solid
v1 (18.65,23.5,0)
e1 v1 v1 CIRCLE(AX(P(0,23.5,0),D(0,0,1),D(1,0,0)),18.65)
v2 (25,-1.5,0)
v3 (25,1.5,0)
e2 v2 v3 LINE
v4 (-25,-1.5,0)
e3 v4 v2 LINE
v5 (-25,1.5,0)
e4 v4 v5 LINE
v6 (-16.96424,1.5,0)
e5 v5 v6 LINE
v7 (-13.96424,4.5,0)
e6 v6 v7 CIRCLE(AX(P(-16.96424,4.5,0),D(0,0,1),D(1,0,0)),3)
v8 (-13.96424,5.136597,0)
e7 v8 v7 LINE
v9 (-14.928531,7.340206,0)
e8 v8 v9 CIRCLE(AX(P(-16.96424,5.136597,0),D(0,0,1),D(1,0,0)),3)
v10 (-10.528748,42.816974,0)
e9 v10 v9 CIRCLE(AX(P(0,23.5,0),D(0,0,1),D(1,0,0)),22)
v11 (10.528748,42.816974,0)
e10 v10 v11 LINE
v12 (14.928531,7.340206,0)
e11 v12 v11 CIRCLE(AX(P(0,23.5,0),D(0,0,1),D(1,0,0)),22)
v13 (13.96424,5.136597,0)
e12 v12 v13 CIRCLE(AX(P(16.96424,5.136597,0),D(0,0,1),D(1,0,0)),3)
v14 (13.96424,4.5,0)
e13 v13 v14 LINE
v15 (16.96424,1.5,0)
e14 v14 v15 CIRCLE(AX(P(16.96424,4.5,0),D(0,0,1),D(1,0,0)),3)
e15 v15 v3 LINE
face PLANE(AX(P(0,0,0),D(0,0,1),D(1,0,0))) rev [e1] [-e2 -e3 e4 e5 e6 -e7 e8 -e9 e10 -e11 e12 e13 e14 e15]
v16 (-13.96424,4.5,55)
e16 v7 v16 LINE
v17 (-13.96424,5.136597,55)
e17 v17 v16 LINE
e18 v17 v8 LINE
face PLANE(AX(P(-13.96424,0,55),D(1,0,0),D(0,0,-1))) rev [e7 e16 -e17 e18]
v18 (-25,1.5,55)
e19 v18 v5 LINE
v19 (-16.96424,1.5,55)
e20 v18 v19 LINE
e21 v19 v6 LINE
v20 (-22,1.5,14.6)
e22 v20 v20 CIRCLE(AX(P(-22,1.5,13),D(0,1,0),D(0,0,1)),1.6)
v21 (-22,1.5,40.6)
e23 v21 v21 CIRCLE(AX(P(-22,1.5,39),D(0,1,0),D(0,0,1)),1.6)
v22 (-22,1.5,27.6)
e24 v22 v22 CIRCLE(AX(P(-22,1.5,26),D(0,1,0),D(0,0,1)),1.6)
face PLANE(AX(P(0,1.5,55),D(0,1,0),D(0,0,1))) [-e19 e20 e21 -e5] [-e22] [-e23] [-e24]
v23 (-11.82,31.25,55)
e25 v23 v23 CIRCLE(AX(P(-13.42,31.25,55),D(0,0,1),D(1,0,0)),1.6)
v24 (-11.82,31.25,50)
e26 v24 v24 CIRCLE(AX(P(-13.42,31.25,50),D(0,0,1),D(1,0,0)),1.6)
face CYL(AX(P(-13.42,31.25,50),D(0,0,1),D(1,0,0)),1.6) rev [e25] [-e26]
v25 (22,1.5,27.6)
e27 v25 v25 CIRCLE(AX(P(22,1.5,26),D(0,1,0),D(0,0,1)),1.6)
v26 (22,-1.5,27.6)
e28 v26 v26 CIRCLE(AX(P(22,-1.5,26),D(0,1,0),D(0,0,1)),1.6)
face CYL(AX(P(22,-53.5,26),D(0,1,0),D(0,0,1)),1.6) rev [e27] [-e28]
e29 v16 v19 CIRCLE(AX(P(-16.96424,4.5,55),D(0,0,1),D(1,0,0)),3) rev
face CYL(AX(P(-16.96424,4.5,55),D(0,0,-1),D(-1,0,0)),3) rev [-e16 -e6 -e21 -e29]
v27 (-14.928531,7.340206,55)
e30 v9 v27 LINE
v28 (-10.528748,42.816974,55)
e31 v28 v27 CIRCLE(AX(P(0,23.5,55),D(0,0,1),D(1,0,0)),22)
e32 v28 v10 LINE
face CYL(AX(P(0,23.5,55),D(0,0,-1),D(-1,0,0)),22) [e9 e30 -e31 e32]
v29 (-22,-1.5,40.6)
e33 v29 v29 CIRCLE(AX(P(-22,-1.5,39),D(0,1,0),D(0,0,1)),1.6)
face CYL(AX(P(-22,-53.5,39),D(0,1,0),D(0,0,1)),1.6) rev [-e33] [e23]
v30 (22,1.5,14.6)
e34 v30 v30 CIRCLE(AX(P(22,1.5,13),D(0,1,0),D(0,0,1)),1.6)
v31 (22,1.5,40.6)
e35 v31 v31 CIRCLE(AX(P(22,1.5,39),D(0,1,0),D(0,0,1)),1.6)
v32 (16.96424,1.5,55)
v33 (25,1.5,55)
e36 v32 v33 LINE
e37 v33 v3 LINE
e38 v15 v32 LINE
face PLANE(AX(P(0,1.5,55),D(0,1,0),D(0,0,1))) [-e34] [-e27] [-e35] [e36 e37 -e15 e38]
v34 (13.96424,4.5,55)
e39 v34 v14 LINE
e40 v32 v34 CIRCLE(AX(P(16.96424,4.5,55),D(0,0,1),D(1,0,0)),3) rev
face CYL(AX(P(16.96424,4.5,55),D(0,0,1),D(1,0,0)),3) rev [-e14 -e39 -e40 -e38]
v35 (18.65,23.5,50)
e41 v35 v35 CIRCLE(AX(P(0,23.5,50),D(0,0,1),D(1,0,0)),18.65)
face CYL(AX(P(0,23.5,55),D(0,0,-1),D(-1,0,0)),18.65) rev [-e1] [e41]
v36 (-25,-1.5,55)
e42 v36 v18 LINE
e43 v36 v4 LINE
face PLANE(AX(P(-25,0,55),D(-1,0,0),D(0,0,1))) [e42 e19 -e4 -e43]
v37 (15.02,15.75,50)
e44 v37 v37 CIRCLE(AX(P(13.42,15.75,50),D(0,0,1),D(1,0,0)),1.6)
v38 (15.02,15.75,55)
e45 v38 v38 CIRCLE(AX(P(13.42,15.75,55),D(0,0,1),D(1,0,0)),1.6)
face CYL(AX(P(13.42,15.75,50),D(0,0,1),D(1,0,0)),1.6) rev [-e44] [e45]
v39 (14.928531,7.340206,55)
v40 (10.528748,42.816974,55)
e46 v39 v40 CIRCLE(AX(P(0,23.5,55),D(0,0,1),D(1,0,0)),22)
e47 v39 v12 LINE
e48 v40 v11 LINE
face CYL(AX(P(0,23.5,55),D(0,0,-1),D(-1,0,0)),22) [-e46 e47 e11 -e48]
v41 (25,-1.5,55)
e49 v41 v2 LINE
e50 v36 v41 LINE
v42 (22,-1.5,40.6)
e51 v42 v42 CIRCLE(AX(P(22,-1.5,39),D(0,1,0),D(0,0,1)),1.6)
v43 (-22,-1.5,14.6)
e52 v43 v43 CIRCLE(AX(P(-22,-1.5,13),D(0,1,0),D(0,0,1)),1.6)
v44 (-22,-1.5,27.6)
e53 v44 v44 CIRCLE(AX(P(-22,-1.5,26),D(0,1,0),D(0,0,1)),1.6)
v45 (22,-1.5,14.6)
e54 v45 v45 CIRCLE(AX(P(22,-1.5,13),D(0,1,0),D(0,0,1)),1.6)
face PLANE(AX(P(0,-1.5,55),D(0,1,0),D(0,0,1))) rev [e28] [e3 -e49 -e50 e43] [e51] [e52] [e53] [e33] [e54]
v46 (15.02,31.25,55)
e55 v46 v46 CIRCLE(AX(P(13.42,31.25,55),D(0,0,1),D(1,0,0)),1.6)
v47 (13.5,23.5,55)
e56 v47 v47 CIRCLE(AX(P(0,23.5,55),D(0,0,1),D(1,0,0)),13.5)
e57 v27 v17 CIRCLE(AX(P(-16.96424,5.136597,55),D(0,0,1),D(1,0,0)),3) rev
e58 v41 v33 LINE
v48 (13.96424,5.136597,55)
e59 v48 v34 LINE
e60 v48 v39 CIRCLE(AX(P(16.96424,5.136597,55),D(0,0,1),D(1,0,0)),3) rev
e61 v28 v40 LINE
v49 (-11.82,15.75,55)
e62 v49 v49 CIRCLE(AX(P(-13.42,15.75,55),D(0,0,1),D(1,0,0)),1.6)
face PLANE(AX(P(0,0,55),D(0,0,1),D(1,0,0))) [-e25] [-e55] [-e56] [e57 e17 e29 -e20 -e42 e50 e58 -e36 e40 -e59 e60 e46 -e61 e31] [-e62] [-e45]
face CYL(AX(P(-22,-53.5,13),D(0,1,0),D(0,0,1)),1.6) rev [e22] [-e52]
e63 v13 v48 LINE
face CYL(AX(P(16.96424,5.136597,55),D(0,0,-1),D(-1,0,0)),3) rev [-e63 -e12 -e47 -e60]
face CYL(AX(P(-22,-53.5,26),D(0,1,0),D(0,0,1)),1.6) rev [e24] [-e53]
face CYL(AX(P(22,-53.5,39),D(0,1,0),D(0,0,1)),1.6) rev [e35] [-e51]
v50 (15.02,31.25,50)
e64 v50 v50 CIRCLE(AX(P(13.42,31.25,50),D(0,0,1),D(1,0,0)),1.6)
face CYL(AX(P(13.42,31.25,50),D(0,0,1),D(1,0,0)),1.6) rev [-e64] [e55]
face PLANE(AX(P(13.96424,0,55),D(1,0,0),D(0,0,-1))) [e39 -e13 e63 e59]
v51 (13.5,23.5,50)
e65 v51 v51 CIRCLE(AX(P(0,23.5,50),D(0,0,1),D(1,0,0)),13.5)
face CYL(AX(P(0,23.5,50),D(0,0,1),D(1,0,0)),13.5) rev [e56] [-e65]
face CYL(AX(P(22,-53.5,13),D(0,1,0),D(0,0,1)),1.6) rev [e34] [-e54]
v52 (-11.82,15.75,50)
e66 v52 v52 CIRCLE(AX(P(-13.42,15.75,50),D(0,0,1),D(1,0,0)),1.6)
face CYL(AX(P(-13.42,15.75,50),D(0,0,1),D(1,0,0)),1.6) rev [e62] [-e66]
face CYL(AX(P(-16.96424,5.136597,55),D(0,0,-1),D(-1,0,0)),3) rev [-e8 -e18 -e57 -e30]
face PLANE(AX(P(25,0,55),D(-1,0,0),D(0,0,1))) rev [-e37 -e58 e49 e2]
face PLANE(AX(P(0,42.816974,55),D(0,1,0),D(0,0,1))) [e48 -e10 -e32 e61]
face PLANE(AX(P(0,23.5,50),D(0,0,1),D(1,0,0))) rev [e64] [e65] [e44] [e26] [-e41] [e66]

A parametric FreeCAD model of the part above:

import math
import FreeCAD as App
import Part
import Sketcher
from FreeCAD import Vector
Q = App.Units.Quantity


def edges_at(feature, points):
    """Names of the edges that pass closest to the given points."""
    edges = feature.Shape.Edges
    near = lambda p: min(range(len(edges)), key=lambda i: edges[i].distToShape(Part.Vertex(*p))[0])
    return sorted({f"Edge{near(p) + 1}" for p in points})

doc = App.newDocument("Part")
body = doc.addObject("PartDesign::Body", "Body")

sketch1 = body.newObject("Sketcher::SketchObject", "Sketch")
sketch1.AttachmentSupport = (doc.getObject("XY_Plane"), [""])
sketch1.MapMode = "FlatFace"
sketch1.addGeometry(Part.ArcOfCircle(Part.Circle(Vector(0, 23.5, 0), Vector(0, 0, 1), 22), math.radians(118.592665), math.radians(230.599431)), False)
sketch1.addGeometry(Part.LineSegment(Vector(-13.96424, 6.5, 0), Vector(-13.96424, 1.5, 0)), False)
sketch1.addGeometry(Part.LineSegment(Vector(-13.96424, 1.5, 0), Vector(-25, 1.5, 0)), False)
sketch1.addGeometry(Part.LineSegment(Vector(-25, 1.5, 0), Vector(-25, -1.5, 0)), False)
sketch1.addGeometry(Part.LineSegment(Vector(-25, -1.5, 0), Vector(25, -1.5, 0)), False)
sketch1.addGeometry(Part.LineSegment(Vector(25, -1.5, 0), Vector(25, 1.5, 0)), False)
sketch1.addGeometry(Part.LineSegment(Vector(25, 1.5, 0), Vector(13.96424, 1.5, 0)), False)
sketch1.addGeometry(Part.LineSegment(Vector(13.96424, 1.5, 0), Vector(13.96424, 6.5, 0)), False)
sketch1.addGeometry(Part.ArcOfCircle(Part.Circle(Vector(0, 23.5, 0), Vector(0, 0, 1), 22), math.radians(-50.599431), math.radians(0)), False)
sketch1.addGeometry(Part.ArcOfCircle(Part.Circle(Vector(0, 23.5, 0), Vector(0, 0, 1), 22), math.radians(0), math.radians(61.407335)), False)
sketch1.addGeometry(Part.LineSegment(Vector(10.528748, 42.816974, 0), Vector(-10.528748, 42.816974, 0)), False)
sketch1.addGeometry(Part.Circle(Vector(0, 23.5, 0), Vector(0, 0, 1), 18.65), False)
sketch1.addConstraint(Sketcher.Constraint("Coincident", 0, 2, 1, 1))
sketch1.addConstraint(Sketcher.Constraint("Coincident", 1, 2, 2, 1))
sketch1.addConstraint(Sketcher.Constraint("Coincident", 2, 2, 3, 1))
sketch1.addConstraint(Sketcher.Constraint("Coincident", 3, 2, 4, 1))
sketch1.addConstraint(Sketcher.Constraint("Coincident", 4, 2, 5, 1))
sketch1.addConstraint(Sketcher.Constraint("Coincident", 5, 2, 6, 1))
sketch1.addConstraint(Sketcher.Constraint("Coincident", 6, 2, 7, 1))
sketch1.addConstraint(Sketcher.Constraint("Coincident", 7, 2, 8, 1))
sketch1.addConstraint(Sketcher.Constraint("Tangent", 8, 2, 9, 1))
sketch1.addConstraint(Sketcher.Constraint("Coincident", 9, 2, 10, 1))
sketch1.addConstraint(Sketcher.Constraint("Coincident", 10, 2, 0, 1))
sketch1.addConstraint(Sketcher.Constraint("Vertical", 1))
sketch1.addConstraint(Sketcher.Constraint("Horizontal", 2))
sketch1.addConstraint(Sketcher.Constraint("Vertical", 3))
sketch1.addConstraint(Sketcher.Constraint("Horizontal", 4))
sketch1.addConstraint(Sketcher.Constraint("Vertical", 5))
sketch1.addConstraint(Sketcher.Constraint("Horizontal", 6))
sketch1.addConstraint(Sketcher.Constraint("Vertical", 7))
sketch1.addConstraint(Sketcher.Constraint("Horizontal", 10))
sketch1.addConstraint(Sketcher.Constraint("Coincident", 8, 3, 0, 3))
sketch1.addConstraint(Sketcher.Constraint("Coincident", 11, 3, 0, 3))
sketch1.addConstraint(Sketcher.Constraint("Equal", 0, 8))
sketch1.addConstraint(Sketcher.Constraint("Equal", 8, 9))
sketch1.addConstraint(Sketcher.Constraint("Symmetric", 2, 2, 4, 2, -1, 1))
sketch1.addConstraint(Sketcher.Constraint("Symmetric", 1, 2, 6, 2, -2))
sketch1.addConstraint(Sketcher.Constraint("PointOnObject", 0, 3, -2))
sketch1.addConstraint(Sketcher.Constraint("Horizontal", 11, 3, 8, 2))
sketch1.addConstraint(Sketcher.Constraint("Radius", 0, Q("22 mm")))
sketch1.addConstraint(Sketcher.Constraint("Diameter", 11, Q("37.3 mm")))
sketch1.addConstraint(Sketcher.Constraint("DistanceX", 4, 1, 4, 2, Q("50 mm")))
sketch1.addConstraint(Sketcher.Constraint("DistanceY", 1, 2, 1, 1, Q("5 mm")))
sketch1.addConstraint(Sketcher.Constraint("DistanceY", 3, 2, 3, 1, Q("3 mm")))
sketch1.addConstraint(Sketcher.Constraint("DistanceY", 0, 2, 0, 3, Q("17 mm")))
sketch1.addConstraint(Sketcher.Constraint("DistanceX", 10, 2, 10, 1, Q("21.057496 mm")))
pad1 = body.newObject("PartDesign::Pad", "Pad")
pad1.Profile = sketch1
pad1.Length = 55
doc.recompute()

fillet = body.newObject("PartDesign::Fillet", "Fillet")
fillet.Base = (pad1, edges_at(pad1, [(13.964, 6.5, 27.5), (13.964, 1.5, 27.5)]))
fillet.Radius = 3
doc.recompute()

fillet2 = body.newObject("PartDesign::Fillet", "Fillet001")
fillet2.Base = (fillet, edges_at(fillet, [(-13.964, 1.5, 27.5), (-13.964, 6.5, 27.5)]))
fillet2.Radius = 3

sketch2 = body.newObject("Sketcher::SketchObject", "Sketch001")
sketch2.AttachmentSupport = (doc.getObject("XZ_Plane"), [""])
sketch2.MapMode = "FlatFace"
sketch2.AttachmentOffset = App.Placement(Vector(0, 0, -1.5), App.Rotation())
sketch2.addGeometry(Part.Circle(Vector(-22, 13, 0), Vector(0, 0, 1), 1.6), False)
sketch2.addGeometry(Part.Circle(Vector(-22, 26, 0), Vector(0, 0, 1), 1.6), False)
sketch2.addGeometry(Part.Circle(Vector(-22, 39, 0), Vector(0, 0, 1), 1.6), False)
sketch2.addConstraint(Sketcher.Constraint("Equal", 0, 1))
sketch2.addConstraint(Sketcher.Constraint("Equal", 1, 2))
sketch2.addConstraint(Sketcher.Constraint("Vertical", 0, 3, 1, 3))
sketch2.addConstraint(Sketcher.Constraint("Vertical", 1, 3, 2, 3))
sketch2.addConstraint(Sketcher.Constraint("Diameter", 0, Q("3.2 mm")))
sketch2.addConstraint(Sketcher.Constraint("DistanceX", 0, 3, -1, 1, Q("22 mm")))
sketch2.addConstraint(Sketcher.Constraint("DistanceY", -1, 1, 0, 3, Q("13 mm")))
sketch2.addConstraint(Sketcher.Constraint("DistanceY", -1, 1, 1, 3, Q("26 mm")))
sketch2.addConstraint(Sketcher.Constraint("DistanceY", -1, 1, 2, 3, Q("39 mm")))
pocket1 = body.newObject("PartDesign::Pocket", "Pocket")
pocket1.Profile = sketch2
pocket1.Length = 55
pocket1.Reversed = True

sketch3 = body.newObject("Sketcher::SketchObject", "Sketch002")
sketch3.AttachmentSupport = (doc.getObject("XZ_Plane"), [""])
sketch3.MapMode = "FlatFace"
sketch3.AttachmentOffset = App.Placement(Vector(0, 0, -1.5), App.Rotation())
sketch3.addGeometry(Part.Circle(Vector(22, 13, 0), Vector(0, 0, 1), 1.6), False)
sketch3.addGeometry(Part.Circle(Vector(22, 26, 0), Vector(0, 0, 1), 1.6), False)
sketch3.addGeometry(Part.Circle(Vector(22, 39, 0), Vector(0, 0, 1), 1.6), False)
sketch3.addConstraint(Sketcher.Constraint("Equal", 0, 1))
sketch3.addConstraint(Sketcher.Constraint("Equal", 1, 2))
sketch3.addConstraint(Sketcher.Constraint("Vertical", 0, 3, 1, 3))
sketch3.addConstraint(Sketcher.Constraint("Vertical", 1, 3, 2, 3))
sketch3.addConstraint(Sketcher.Constraint("Diameter", 0, Q("3.2 mm")))
sketch3.addConstraint(Sketcher.Constraint("DistanceX", -1, 1, 0, 3, Q("22 mm")))
sketch3.addConstraint(Sketcher.Constraint("DistanceY", -1, 1, 0, 3, Q("13 mm")))
sketch3.addConstraint(Sketcher.Constraint("DistanceY", -1, 1, 1, 3, Q("26 mm")))
sketch3.addConstraint(Sketcher.Constraint("DistanceY", -1, 1, 2, 3, Q("39 mm")))
pocket2 = body.newObject("PartDesign::Pocket", "Pocket001")
pocket2.Profile = sketch3
pocket2.Length = 55
pocket2.Reversed = True

sketch4 = body.newObject("Sketcher::SketchObject", "Sketch003")
sketch4.AttachmentSupport = (doc.getObject("XY_Plane"), [""])
sketch4.MapMode = "FlatFace"
sketch4.AttachmentOffset = App.Placement(Vector(0, 0, 50), App.Rotation())
sketch4.addGeometry(Part.Circle(Vector(0, 23.5, 0), Vector(0, 0, 1), 18.65), False)
sketch4.addGeometry(Part.Circle(Vector(-13.42, 15.75, 0), Vector(0, 0, 1), 1.6), False)
sketch4.addGeometry(Part.Circle(Vector(13.42, 15.75, 0), Vector(0, 0, 1), 1.6), False)
sketch4.addGeometry(Part.Circle(Vector(-13.42, 31.25, 0), Vector(0, 0, 1), 1.6), False)
sketch4.addGeometry(Part.Circle(Vector(0, 23.5, 0), Vector(0, 0, 1), 13.5), False)
sketch4.addGeometry(Part.Circle(Vector(13.42, 31.25, 0), Vector(0, 0, 1), 1.6), False)
sketch4.addConstraint(Sketcher.Constraint("Coincident", 4, 3, 0, 3))
sketch4.addConstraint(Sketcher.Constraint("Equal", 1, 2))
sketch4.addConstraint(Sketcher.Constraint("Equal", 2, 3))
sketch4.addConstraint(Sketcher.Constraint("Equal", 3, 5))
sketch4.addConstraint(Sketcher.Constraint("Symmetric", 1, 3, 2, 3, -2))
sketch4.addConstraint(Sketcher.Constraint("Symmetric", 3, 3, 5, 3, -2))
sketch4.addConstraint(Sketcher.Constraint("PointOnObject", 0, 3, -2))
sketch4.addConstraint(Sketcher.Constraint("Vertical", 1, 3, 3, 3))
sketch4.addConstraint(Sketcher.Constraint("Diameter", 4, Q("27 mm")))
sketch4.addConstraint(Sketcher.Constraint("Diameter", 0, Q("37.3 mm")))
sketch4.addConstraint(Sketcher.Constraint("Diameter", 1, Q("3.2 mm")))
sketch4.addConstraint(Sketcher.Constraint("DistanceY", -1, 1, 0, 3, Q("23.5 mm")))
sketch4.addConstraint(Sketcher.Constraint("DistanceY", 1, 3, 3, 3, Q("15.5 mm")))
sketch4.addConstraint(Sketcher.Constraint("DistanceX", 1, 3, -1, 1, Q("13.42 mm")))
sketch4.addConstraint(Sketcher.Constraint("DistanceY", -1, 1, 1, 3, Q("15.75 mm")))
pad2 = body.newObject("PartDesign::Pad", "Pad001")
pad2.Profile = sketch4
pad2.Length = 5

doc.recompute()
